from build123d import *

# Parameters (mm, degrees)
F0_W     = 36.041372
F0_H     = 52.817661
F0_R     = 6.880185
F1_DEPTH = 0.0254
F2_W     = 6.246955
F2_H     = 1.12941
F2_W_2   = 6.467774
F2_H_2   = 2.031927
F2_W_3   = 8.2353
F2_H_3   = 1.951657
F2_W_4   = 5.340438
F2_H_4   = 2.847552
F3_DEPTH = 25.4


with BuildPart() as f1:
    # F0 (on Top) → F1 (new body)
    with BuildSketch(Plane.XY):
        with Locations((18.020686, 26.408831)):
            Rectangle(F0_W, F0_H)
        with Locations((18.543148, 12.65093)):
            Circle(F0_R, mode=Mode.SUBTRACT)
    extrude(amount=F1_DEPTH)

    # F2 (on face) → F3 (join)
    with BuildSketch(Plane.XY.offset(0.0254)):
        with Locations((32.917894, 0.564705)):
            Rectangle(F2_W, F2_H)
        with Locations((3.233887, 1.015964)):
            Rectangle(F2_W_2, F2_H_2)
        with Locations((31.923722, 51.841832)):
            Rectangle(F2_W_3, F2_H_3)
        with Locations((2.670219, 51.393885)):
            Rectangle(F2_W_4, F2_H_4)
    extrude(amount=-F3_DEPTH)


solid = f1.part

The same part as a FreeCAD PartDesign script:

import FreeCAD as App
import Part
import Sketcher
from FreeCAD import Vector
Q = App.Units.Quantity

doc = App.newDocument("Part")
body = doc.addObject("PartDesign::Body", "Body")

# Sketch on XY plane
sketch1 = body.newObject("Sketcher::SketchObject", "Sketch")
sketch1.AttachmentSupport = (doc.getObject("XY_Plane"), [""])
sketch1.MapMode = "FlatFace"
sketch1.addGeometry([
    Part.LineSegment(Vector(0, 52.817661, 0), Vector(0, 0, 0)),  # 0
    Part.LineSegment(Vector(0, 0, 0), Vector(36.041372, 0, 0)),  # 1
    Part.LineSegment(Vector(36.041372, 0, 0), Vector(36.041372, 52.817661, 0)),  # 2
    Part.LineSegment(Vector(36.041372, 52.817661, 0), Vector(0, 52.817661, 0)),  # 3
    Part.Circle(Vector(18.543148, 12.65093, 0), Vector(0, 0, 1), 6.880185),  # 4
], False)
sketch1.addConstraint([
    Sketcher.Constraint("Coincident", 0, 2, 1, 1),
    Sketcher.Constraint("Coincident", 1, 2, 2, 1),
    Sketcher.Constraint("Coincident", 2, 2, 3, 1),
    Sketcher.Constraint("Coincident", 3, 2, 0, 1),
    Sketcher.Constraint("Vertical", 0),
    Sketcher.Constraint("Horizontal", 1),
    Sketcher.Constraint("Vertical", 2),
    Sketcher.Constraint("Horizontal", 3),
    Sketcher.Constraint("Coincident", 0, 2, -1, 1),
    Sketcher.Constraint("Diameter", 4, 13.76037),
    Sketcher.Constraint("DistanceY", 0, 2, 0, 1, 52.817661),
    Sketcher.Constraint("DistanceX", 1, 1, 1, 2, 36.041372),
    Sketcher.Constraint("DistanceY", -1, 1, 4, 3, 12.65093),
    Sketcher.Constraint("DistanceX", -1, 1, 4, 3, 18.543148),
])
pad1 = body.newObject("PartDesign::Pad", "Pad")
pad1.Profile = sketch1
pad1.Length = Q("0.001 in")

# Sketch on XY plane
sketch2 = body.newObject("Sketcher::SketchObject", "Sketch001")
sketch2.AttachmentSupport = (doc.getObject("XY_Plane"), [""])
sketch2.MapMode = "FlatFace"
sketch2.AttachmentOffset = App.Placement(Vector(0, 0, 0.001 * 25.4), App.Rotation())
sketch2.addGeometry([
    Part.LineSegment(Vector(29.794417, 1.12941, 0), Vector(29.794417, 0, 0)),  # 0
    Part.LineSegment(Vector(29.794417, 0, 0), Vector(36.041371, 0, 0)),  # 1
    Part.LineSegment(Vector(36.041371, 0, 0), Vector(36.041371, 1.12941, 0)),  # 2
    Part.LineSegment(Vector(36.041371, 1.12941, 0), Vector(29.794417, 1.12941, 0)),  # 3
    Part.LineSegment(Vector(0, 2.031928, 0), Vector(0, 0, 0)),  # 4
    Part.LineSegment(Vector(0, 0, 0), Vector(6.467774, 0, 0)),  # 5
    Part.LineSegment(Vector(6.467774, 0, 0), Vector(6.467774, 2.031928, 0)),  # 6
    Part.LineSegment(Vector(6.467774, 2.031928, 0), Vector(0, 2.031928, 0)),  # 7
    Part.LineSegment(Vector(27.806072, 52.817661, 0), Vector(27.806072, 50.866003, 0)),  # 8
    Part.LineSegment(Vector(27.806072, 50.866003, 0), Vector(36.041372, 50.866003, 0)),  # 9
    Part.LineSegment(Vector(36.041372, 50.866003, 0), Vector(36.041372, 52.817661, 0)),  # 10
    Part.LineSegment(Vector(36.041372, 52.817661, 0), Vector(27.806072, 52.817661, 0)),  # 11
    Part.LineSegment(Vector(0, 52.817661, 0), Vector(0, 49.970109, 0)),  # 12
    Part.LineSegment(Vector(0, 49.970109, 0), Vector(5.340438, 49.970109, 0)),  # 13
    Part.LineSegment(Vector(5.340438, 49.970109, 0), Vector(5.340438, 52.817661, 0)),  # 14
    Part.LineSegment(Vector(5.340438, 52.817661, 0), Vector(0, 52.817661, 0)),  # 15
], False)
sketch2.addConstraint([
    Sketcher.Constraint("Coincident", 0, 2, 1, 1),
    Sketcher.Constraint("Coincident", 1, 2, 2, 1),
    Sketcher.Constraint("Coincident", 2, 2, 3, 1),
    Sketcher.Constraint("Coincident", 3, 2, 0, 1),
    Sketcher.Constraint("Coincident", 4, 2, 5, 1),
    Sketcher.Constraint("Coincident", 5, 2, 6, 1),
    Sketcher.Constraint("Coincident", 6, 2, 7, 1),
    Sketcher.Constraint("Coincident", 7, 2, 4, 1),
    Sketcher.Constraint("Coincident", 8, 2, 9, 1),
    Sketcher.Constraint("Coincident", 9, 2, 10, 1),
    Sketcher.Constraint("Coincident", 10, 2, 11, 1),
    Sketcher.Constraint("Coincident", 11, 2, 8, 1),
    Sketcher.Constraint("Coincident", 12, 2, 13, 1),
    Sketcher.Constraint("Coincident", 13, 2, 14, 1),
    Sketcher.Constraint("Coincident", 14, 2, 15, 1),
    Sketcher.Constraint("Coincident", 15, 2, 12, 1),
    Sketcher.Constraint("Vertical", 0),
    Sketcher.Constraint("Horizontal", 1),
    Sketcher.Constraint("Vertical", 2),
    Sketcher.Constraint("Horizontal", 3),
    Sketcher.Constraint("Vertical", 4),
    Sketcher.Constraint("Horizontal", 5),
    Sketcher.Constraint("Vertical", 6),
    Sketcher.Constraint("Horizontal", 7),
    Sketcher.Constraint("Vertical", 8),
    Sketcher.Constraint("Horizontal", 9),
    Sketcher.Constraint("Vertical", 10),
    Sketcher.Constraint("Horizontal", 11),
    Sketcher.Constraint("Vertical", 12),
    Sketcher.Constraint("Horizontal", 13),
    Sketcher.Constraint("Vertical", 14),
    Sketcher.Constraint("Horizontal", 15),
    Sketcher.Constraint("Coincident", 4, 2, -1, 1),
    Sketcher.Constraint("PointOnObject", 0, 2, -1),
    Sketcher.Constraint("PointOnObject", 12, 2, -2),
    Sketcher.Constraint("Horizontal", 11, 2, 14, 2),
    Sketcher.Constraint("Vertical", 2, 2, 9, 2),
    Sketcher.Constraint("DistanceX", 9, 1, 9, 2, 8.2353),
    Sketcher.Constraint("DistanceY", 0, 2, 0, 1, 1.12941),
    Sketcher.Constraint("DistanceX", 6, 2, 8, 2, 21.338298),
    Sketcher.Constraint("DistanceX", 1, 1, 1, 2, 6.246955),
    Sketcher.Constraint("DistanceX", 5, 1, 5, 2, 6.467774),
    Sketcher.Constraint("DistanceX", 13, 1, 13, 2, 5.340438),
    Sketcher.Constraint("DistanceY", 4, 2, 4, 1, 2.031927),
    Sketcher.Constraint("DistanceY", 8, 2, 8, 1, 1.951657),
    Sketcher.Constraint("DistanceY", 12, 2, 12, 1, 2.847552),
    Sketcher.Constraint("DistanceY", -1, 1, 10, 2, 52.817661),
])
pad2 = body.newObject("PartDesign::Pad", "Pad001")
pad2.Profile = sketch2
pad2.Length = Q("1 in")
pad2.Reversed = True

doc.recompute()
